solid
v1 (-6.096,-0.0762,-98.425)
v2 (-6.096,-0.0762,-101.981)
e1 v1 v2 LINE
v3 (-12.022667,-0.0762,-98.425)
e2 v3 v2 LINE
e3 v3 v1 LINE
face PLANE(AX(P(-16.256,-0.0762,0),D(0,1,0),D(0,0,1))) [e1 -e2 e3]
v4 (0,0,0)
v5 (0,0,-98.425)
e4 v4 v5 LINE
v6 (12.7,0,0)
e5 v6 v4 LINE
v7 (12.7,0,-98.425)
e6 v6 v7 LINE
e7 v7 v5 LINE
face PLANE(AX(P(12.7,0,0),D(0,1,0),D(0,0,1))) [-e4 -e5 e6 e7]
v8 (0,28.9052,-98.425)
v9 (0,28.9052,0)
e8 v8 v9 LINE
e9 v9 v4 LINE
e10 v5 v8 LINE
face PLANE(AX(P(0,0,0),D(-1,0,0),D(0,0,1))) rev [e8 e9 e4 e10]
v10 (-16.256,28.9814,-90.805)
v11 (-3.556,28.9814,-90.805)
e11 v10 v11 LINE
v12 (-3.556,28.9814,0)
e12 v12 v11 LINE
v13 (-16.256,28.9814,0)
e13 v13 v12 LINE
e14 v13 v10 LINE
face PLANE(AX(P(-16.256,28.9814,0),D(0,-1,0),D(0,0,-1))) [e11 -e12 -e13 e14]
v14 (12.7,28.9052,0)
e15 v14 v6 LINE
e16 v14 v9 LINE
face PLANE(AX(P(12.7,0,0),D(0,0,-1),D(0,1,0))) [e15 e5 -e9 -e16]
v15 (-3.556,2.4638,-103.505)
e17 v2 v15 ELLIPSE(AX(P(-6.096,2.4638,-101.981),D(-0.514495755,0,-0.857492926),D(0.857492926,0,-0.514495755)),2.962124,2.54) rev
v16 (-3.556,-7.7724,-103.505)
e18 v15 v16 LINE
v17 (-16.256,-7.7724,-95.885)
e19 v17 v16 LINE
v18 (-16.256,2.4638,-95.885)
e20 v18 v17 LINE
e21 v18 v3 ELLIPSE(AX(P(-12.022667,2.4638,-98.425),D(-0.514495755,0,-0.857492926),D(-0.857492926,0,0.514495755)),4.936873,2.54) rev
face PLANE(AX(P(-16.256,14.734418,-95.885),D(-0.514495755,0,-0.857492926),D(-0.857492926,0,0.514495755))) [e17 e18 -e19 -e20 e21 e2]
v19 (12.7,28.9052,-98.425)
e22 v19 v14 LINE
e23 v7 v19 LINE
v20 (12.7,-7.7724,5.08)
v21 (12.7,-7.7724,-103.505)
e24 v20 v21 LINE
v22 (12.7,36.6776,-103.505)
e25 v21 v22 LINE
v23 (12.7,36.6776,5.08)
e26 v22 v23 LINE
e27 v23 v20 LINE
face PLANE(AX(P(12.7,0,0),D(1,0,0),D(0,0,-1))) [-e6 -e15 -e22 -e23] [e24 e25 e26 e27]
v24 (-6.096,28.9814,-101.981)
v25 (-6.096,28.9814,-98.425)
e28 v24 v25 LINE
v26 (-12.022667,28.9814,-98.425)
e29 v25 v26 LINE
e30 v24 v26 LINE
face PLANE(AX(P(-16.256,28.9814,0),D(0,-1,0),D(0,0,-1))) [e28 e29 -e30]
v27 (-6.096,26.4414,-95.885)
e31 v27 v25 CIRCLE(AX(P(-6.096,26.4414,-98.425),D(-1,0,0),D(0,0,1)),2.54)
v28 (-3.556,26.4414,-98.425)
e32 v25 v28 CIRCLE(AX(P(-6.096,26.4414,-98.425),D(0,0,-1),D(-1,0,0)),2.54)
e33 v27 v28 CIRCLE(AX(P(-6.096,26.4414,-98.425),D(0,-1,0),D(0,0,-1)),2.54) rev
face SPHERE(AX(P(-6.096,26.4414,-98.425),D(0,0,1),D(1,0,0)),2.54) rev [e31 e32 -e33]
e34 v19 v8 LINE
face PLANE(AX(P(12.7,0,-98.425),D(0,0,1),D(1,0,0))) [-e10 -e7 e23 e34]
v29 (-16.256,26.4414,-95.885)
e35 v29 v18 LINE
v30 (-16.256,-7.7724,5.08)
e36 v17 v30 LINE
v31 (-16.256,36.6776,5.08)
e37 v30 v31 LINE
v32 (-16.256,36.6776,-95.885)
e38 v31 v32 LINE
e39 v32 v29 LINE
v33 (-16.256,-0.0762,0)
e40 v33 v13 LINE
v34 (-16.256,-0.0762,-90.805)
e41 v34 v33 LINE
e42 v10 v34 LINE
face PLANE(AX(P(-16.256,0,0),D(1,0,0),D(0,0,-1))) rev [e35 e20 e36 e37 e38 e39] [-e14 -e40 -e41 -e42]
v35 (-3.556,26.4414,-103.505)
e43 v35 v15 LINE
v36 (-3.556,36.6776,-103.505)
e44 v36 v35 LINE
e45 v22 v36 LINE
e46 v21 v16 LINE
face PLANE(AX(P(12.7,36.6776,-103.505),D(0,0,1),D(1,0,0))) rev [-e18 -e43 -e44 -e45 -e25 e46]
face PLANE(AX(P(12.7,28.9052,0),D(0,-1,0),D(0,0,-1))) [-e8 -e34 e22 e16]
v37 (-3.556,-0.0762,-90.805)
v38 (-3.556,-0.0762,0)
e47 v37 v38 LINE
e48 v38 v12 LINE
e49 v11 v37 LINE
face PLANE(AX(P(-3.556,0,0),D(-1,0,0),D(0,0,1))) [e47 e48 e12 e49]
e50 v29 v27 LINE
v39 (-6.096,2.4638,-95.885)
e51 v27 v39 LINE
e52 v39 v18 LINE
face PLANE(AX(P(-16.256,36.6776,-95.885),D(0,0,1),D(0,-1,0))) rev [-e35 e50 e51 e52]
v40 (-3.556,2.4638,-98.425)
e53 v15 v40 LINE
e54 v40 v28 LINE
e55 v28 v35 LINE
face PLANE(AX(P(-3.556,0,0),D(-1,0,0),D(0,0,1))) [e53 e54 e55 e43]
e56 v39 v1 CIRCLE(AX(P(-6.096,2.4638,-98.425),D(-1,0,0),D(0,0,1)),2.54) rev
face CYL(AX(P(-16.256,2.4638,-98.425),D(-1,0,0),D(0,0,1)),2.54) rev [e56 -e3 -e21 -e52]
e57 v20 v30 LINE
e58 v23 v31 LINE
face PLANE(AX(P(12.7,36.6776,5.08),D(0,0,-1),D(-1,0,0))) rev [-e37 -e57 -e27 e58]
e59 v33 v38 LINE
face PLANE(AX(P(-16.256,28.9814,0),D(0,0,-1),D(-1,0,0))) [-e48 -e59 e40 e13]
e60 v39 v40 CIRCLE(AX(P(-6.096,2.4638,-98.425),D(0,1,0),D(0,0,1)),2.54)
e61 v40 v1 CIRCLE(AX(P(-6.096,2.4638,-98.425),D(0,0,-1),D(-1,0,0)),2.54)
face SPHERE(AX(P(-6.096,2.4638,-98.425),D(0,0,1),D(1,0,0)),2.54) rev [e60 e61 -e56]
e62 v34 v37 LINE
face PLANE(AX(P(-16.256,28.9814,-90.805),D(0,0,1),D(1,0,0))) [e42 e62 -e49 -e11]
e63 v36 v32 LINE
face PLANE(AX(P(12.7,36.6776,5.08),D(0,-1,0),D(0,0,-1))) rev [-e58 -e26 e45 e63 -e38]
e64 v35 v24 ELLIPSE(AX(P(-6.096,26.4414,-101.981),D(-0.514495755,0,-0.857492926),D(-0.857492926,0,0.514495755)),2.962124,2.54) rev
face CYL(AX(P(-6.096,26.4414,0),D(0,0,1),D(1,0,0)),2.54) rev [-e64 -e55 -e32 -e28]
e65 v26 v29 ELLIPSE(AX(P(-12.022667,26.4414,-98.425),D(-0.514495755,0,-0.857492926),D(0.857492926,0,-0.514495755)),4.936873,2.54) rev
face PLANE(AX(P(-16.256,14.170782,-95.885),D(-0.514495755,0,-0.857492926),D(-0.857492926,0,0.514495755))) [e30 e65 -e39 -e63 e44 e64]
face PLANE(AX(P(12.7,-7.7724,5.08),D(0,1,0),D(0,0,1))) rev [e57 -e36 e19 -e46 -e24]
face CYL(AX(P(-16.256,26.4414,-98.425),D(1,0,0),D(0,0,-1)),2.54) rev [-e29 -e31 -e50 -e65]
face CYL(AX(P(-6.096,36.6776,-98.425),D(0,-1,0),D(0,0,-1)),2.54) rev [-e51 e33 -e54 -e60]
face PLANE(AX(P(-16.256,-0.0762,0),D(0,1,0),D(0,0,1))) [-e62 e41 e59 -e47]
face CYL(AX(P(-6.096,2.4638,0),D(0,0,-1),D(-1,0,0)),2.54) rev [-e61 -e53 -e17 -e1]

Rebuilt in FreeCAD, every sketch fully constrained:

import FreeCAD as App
import Part
import Sketcher
from FreeCAD import Vector
Q = App.Units.Quantity


def edges_at(feature, points):
    """Names of the edges that pass closest to the given points."""
    edges = feature.Shape.Edges
    near = lambda p: min(range(len(edges)), key=lambda i: edges[i].distToShape(Part.Vertex(*p))[0])
    return sorted({f"Edge{near(p) + 1}" for p in points})


def add_polygon(sketch, points):
    """Adds a closed chain of lines whose ends are joined by coincident constraints."""
    first, n = sketch.GeometryCount, len(points)
    for a, b in zip(points, points[1:] + points[:1]):
        sketch.addGeometry(Part.LineSegment(App.Vector(*a, 0), App.Vector(*b, 0)), False)
    for i in range(n):
        sketch.addConstraint(Sketcher.Constraint("Coincident", first + i, 2, first + (i + 1) % n, 1))

doc = App.newDocument("Part")
body = doc.addObject("PartDesign::Body", "Body")

sketch1 = body.newObject("Sketcher::SketchObject", "Sketch")
sketch1.AttachmentSupport = (doc.getObject("YZ_Plane"), [""])
sketch1.MapMode = "FlatFace"
add_polygon(sketch1, [(37, 5), (-8, 5), (-8, -104), (37, -104)])
add_polygon(sketch1, [(0, -98), (0, 0), (29, 0), (29, -98)])
sketch1.addConstraint(Sketcher.Constraint("Horizontal", 0))
sketch1.addConstraint(Sketcher.Constraint("Vertical", 1))
sketch1.addConstraint(Sketcher.Constraint("Horizontal", 2))
sketch1.addConstraint(Sketcher.Constraint("Vertical", 3))
sketch1.addConstraint(Sketcher.Constraint("Vertical", 4))
sketch1.addConstraint(Sketcher.Constraint("Horizontal", 5))
sketch1.addConstraint(Sketcher.Constraint("Vertical", 6))
sketch1.addConstraint(Sketcher.Constraint("Horizontal", 7))
sketch1.addConstraint(Sketcher.Constraint("Coincident", 4, 2, -1, 1))
sketch1.addConstraint(Sketcher.Constraint("DistanceX", 0, 2, 0, 1, Q("1.75 in")))
sketch1.addConstraint(Sketcher.Constraint("DistanceY", -1, 1, 0, 2, Q("0.2 in")))
sketch1.addConstraint(Sketcher.Constraint("DistanceY", 2, 2, 6, 2, Q("0.2 in")))
sketch1.addConstraint(Sketcher.Constraint("DistanceX", 5, 1, 5, 2, Q("1.138 in")))
sketch1.addConstraint(Sketcher.Constraint("DistanceY", 1, 2, 1, 1, Q("4.275 in")))
sketch1.addConstraint(Sketcher.Constraint("DistanceX", 0, 2, -1, 1, Q("0.306 in")))
pad1 = body.newObject("PartDesign::Pad", "Pad")
pad1.Profile = sketch1
pad1.Length = Q("0.5 in")

sketch2 = body.newObject("Sketcher::SketchObject", "Sketch001")
sketch2.AttachmentSupport = (doc.getObject("YZ_Plane"), [""])
sketch2.MapMode = "FlatFace"
add_polygon(sketch2, [(37, -104), (-8, -104), (-8, 5), (37, 5)])
sketch2.addConstraint(Sketcher.Constraint("Horizontal", 0))
sketch2.addConstraint(Sketcher.Constraint("Vertical", 1))
sketch2.addConstraint(Sketcher.Constraint("Horizontal", 2))
sketch2.addConstraint(Sketcher.Constraint("Vertical", 3))
sketch2.addConstraint(Sketcher.Constraint("DistanceX", 0, 2, 0, 1, Q("1.75 in")))
sketch2.addConstraint(Sketcher.Constraint("DistanceY", -1, 1, 1, 2, Q("0.2 in")))
sketch2.addConstraint(Sketcher.Constraint("DistanceY", 1, 1, 1, 2, Q("4.275 in")))
sketch2.addConstraint(Sketcher.Constraint("DistanceX", 0, 2, -1, 1, Q("0.306 in")))
pad2 = body.newObject("PartDesign::Pad", "Pad001")
pad2.Profile = sketch2
pad2.Length = Q("0.14 in")
pad2.Reversed = True

sketch3 = body.newObject("Sketcher::SketchObject", "Sketch002")
sketch3.AttachmentSupport = (doc.getObject("YZ_Plane"), [""])
sketch3.MapMode = "FlatFace"
sketch3.AttachmentOffset = App.Placement(Vector(0, 0, -0.14 * 25.4), App.Rotation())
add_polygon(sketch3, [(37, -96), (-8, -96), (-8, 5), (37, 5)])
add_polygon(sketch3, [(0, 0), (0, -91), (29, -91), (29, 0)])
sketch3.addConstraint(Sketcher.Constraint("Horizontal", 0))
sketch3.addConstraint(Sketcher.Constraint("Vertical", 1))
sketch3.addConstraint(Sketcher.Constraint("Horizontal", 2))
sketch3.addConstraint(Sketcher.Constraint("Vertical", 3))
sketch3.addConstraint(Sketcher.Constraint("Vertical", 4))
sketch3.addConstraint(Sketcher.Constraint("Horizontal", 5))
sketch3.addConstraint(Sketcher.Constraint("Vertical", 6))
sketch3.addConstraint(Sketcher.Constraint("Horizontal", 7))
sketch3.addConstraint(Sketcher.Constraint("PointOnObject", 6, 2, -1))
sketch3.addConstraint(Sketcher.Constraint("DistanceX", 0, 2, 0, 1, Q("1.75 in")))
sketch3.addConstraint(Sketcher.Constraint("DistanceY", -1, 1, 1, 2, Q("0.2 in")))
sketch3.addConstraint(Sketcher.Constraint("DistanceY", 0, 2, 4, 2, Q("0.2 in")))
sketch3.addConstraint(Sketcher.Constraint("DistanceX", 5, 1, 5, 2, Q("1.144 in")))
sketch3.addConstraint(Sketcher.Constraint("DistanceY", 1, 1, 1, 2, Q("3.975 in")))
sketch3.addConstraint(Sketcher.Constraint("DistanceX", 0, 2, -1, 1, Q("0.306 in")))
sketch3.addConstraint(Sketcher.Constraint("DistanceX", 4, 2, -1, 1, Q("0.003 in")))
pad3 = body.newObject("PartDesign::Pad", "Pad002")
pad3.Profile = sketch3
pad3.Length = Q("0.5 in")
pad3.Reversed = True

sketch4 = body.newObject("Sketcher::SketchObject", "Sketch003")
sketch4.AttachmentSupport = (doc.getObject("XZ_Plane"), [""])
sketch4.MapMode = "FlatFace"
sketch4.AttachmentOffset = App.Placement(Vector(0, 0, -1.444 * 25.4), App.Rotation())
add_polygon(sketch4, [(-4, -96), (-4, -104), (-16, -96)])
sketch4.addConstraint(Sketcher.Constraint("Vertical", 0))
sketch4.addConstraint(Sketcher.Constraint("Horizontal", 2))
sketch4.addConstraint(Sketcher.Constraint("DistanceX", 2, 1, 2, 2, Q("0.5 in")))
sketch4.addConstraint(Sketcher.Constraint("DistanceY", 0, 2, 0, 1, Q("0.3 in")))
sketch4.addConstraint(Sketcher.Constraint("DistanceX", 0, 2, -1, 1, Q("0.14 in")))
sketch4.addConstraint(Sketcher.Constraint("DistanceY", 0, 2, -1, 1, Q("4.075 in")))
pad4 = body.newObject("PartDesign::Pad", "Pad003")
pad4.Profile = sketch4
pad4.Length = Q("0.303 in")

sketch5 = body.newObject("Sketcher::SketchObject", "Sketch004")
sketch5.AttachmentSupport = (doc.getObject("XZ_Plane"), [""])
sketch5.MapMode = "FlatFace"
sketch5.AttachmentOffset = App.Placement(Vector(0, 0, 0.306 * 25.4), App.Rotation())
add_polygon(sketch5, [(-4, -104), (-4, -96), (-16, -96)])
sketch5.addConstraint(Sketcher.Constraint("Vertical", 0))
sketch5.addConstraint(Sketcher.Constraint("Horizontal", 1))
sketch5.addConstraint(Sketcher.Constraint("DistanceX", 1, 2, 1, 1, Q("0.5 in")))
sketch5.addConstraint(Sketcher.Constraint("DistanceY", 0, 1, 0, 2, Q("0.3 in")))
sketch5.addConstraint(Sketcher.Constraint("DistanceX", 0, 2, -1, 1, Q("0.14 in")))
sketch5.addConstraint(Sketcher.Constraint("DistanceY", 0, 2, -1, 1, Q("3.775 in")))
pad5 = body.newObject("PartDesign::Pad", "Pad004")
pad5.Profile = sketch5
pad5.Length = Q("0.303 in")
pad5.Reversed = True
doc.recompute()

fillet = body.newObject("PartDesign::Fillet", "Fillet")
fillet.Base = (pad5, edges_at(pad5, [
    (-3.556, 14.453, -95.885),
    (-9.906, 28.981, -95.885),
    (-3.556, 28.981, -99.695),
    (-3.556, -0.076, -99.695),
    (-9.906, -0.076, -95.885),
]))
fillet.Radius = Q("0.1 in")

doc.recompute()
